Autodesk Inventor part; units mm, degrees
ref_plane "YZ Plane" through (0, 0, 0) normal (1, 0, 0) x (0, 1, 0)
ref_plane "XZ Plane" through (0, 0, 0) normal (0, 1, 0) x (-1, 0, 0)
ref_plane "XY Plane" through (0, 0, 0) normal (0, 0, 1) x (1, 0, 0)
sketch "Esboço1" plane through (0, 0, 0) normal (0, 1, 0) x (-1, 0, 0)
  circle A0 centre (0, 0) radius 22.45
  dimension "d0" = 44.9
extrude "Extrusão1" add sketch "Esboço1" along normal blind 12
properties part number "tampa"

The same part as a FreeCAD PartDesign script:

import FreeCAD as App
import Part
import Sketcher

V = App.Vector
Q = App.Units.Quantity

doc = App.newDocument("Part")
params = doc.addObject("Spreadsheet::Sheet", "Params")
for row, (alias, value) in enumerate([
    ("sketch1_diameter", "44.9 mm"),
    ("pad1_length", "12 mm"),
], start=1):
    params.set(f"A{row}", alias)
    params.set(f"B{row}", "=" + value)
    params.setAlias(f"B{row}", alias)

body = doc.addObject("PartDesign::Body", "Body")

# Sketch on XZ plane
sketch1 = body.newObject("Sketcher::SketchObject", "Sketch")
sketch1.AttachmentSupport = (doc.getObject("XZ_Plane"), [""])
sketch1.MapMode = "FlatFace"
sketch1.addGeometry(Part.Circle(V(0, 0, 0), V(0, 0, 1), 22), False)
sketch1.addConstraint([
    Sketcher.Constraint("Coincident", 0, 3, -1, 1),
    Sketcher.Constraint("Diameter", 0, Q("44.9 mm")),
])
sketch1.setExpression("Constraints[1]", "Params.sketch1_diameter")
pad1 = body.newObject("PartDesign::Pad", "Pad")
pad1.Profile = sketch1
pad1.setExpression("Length", "Params.pad1_length")
pad1.Reversed = True

doc.recompute()
